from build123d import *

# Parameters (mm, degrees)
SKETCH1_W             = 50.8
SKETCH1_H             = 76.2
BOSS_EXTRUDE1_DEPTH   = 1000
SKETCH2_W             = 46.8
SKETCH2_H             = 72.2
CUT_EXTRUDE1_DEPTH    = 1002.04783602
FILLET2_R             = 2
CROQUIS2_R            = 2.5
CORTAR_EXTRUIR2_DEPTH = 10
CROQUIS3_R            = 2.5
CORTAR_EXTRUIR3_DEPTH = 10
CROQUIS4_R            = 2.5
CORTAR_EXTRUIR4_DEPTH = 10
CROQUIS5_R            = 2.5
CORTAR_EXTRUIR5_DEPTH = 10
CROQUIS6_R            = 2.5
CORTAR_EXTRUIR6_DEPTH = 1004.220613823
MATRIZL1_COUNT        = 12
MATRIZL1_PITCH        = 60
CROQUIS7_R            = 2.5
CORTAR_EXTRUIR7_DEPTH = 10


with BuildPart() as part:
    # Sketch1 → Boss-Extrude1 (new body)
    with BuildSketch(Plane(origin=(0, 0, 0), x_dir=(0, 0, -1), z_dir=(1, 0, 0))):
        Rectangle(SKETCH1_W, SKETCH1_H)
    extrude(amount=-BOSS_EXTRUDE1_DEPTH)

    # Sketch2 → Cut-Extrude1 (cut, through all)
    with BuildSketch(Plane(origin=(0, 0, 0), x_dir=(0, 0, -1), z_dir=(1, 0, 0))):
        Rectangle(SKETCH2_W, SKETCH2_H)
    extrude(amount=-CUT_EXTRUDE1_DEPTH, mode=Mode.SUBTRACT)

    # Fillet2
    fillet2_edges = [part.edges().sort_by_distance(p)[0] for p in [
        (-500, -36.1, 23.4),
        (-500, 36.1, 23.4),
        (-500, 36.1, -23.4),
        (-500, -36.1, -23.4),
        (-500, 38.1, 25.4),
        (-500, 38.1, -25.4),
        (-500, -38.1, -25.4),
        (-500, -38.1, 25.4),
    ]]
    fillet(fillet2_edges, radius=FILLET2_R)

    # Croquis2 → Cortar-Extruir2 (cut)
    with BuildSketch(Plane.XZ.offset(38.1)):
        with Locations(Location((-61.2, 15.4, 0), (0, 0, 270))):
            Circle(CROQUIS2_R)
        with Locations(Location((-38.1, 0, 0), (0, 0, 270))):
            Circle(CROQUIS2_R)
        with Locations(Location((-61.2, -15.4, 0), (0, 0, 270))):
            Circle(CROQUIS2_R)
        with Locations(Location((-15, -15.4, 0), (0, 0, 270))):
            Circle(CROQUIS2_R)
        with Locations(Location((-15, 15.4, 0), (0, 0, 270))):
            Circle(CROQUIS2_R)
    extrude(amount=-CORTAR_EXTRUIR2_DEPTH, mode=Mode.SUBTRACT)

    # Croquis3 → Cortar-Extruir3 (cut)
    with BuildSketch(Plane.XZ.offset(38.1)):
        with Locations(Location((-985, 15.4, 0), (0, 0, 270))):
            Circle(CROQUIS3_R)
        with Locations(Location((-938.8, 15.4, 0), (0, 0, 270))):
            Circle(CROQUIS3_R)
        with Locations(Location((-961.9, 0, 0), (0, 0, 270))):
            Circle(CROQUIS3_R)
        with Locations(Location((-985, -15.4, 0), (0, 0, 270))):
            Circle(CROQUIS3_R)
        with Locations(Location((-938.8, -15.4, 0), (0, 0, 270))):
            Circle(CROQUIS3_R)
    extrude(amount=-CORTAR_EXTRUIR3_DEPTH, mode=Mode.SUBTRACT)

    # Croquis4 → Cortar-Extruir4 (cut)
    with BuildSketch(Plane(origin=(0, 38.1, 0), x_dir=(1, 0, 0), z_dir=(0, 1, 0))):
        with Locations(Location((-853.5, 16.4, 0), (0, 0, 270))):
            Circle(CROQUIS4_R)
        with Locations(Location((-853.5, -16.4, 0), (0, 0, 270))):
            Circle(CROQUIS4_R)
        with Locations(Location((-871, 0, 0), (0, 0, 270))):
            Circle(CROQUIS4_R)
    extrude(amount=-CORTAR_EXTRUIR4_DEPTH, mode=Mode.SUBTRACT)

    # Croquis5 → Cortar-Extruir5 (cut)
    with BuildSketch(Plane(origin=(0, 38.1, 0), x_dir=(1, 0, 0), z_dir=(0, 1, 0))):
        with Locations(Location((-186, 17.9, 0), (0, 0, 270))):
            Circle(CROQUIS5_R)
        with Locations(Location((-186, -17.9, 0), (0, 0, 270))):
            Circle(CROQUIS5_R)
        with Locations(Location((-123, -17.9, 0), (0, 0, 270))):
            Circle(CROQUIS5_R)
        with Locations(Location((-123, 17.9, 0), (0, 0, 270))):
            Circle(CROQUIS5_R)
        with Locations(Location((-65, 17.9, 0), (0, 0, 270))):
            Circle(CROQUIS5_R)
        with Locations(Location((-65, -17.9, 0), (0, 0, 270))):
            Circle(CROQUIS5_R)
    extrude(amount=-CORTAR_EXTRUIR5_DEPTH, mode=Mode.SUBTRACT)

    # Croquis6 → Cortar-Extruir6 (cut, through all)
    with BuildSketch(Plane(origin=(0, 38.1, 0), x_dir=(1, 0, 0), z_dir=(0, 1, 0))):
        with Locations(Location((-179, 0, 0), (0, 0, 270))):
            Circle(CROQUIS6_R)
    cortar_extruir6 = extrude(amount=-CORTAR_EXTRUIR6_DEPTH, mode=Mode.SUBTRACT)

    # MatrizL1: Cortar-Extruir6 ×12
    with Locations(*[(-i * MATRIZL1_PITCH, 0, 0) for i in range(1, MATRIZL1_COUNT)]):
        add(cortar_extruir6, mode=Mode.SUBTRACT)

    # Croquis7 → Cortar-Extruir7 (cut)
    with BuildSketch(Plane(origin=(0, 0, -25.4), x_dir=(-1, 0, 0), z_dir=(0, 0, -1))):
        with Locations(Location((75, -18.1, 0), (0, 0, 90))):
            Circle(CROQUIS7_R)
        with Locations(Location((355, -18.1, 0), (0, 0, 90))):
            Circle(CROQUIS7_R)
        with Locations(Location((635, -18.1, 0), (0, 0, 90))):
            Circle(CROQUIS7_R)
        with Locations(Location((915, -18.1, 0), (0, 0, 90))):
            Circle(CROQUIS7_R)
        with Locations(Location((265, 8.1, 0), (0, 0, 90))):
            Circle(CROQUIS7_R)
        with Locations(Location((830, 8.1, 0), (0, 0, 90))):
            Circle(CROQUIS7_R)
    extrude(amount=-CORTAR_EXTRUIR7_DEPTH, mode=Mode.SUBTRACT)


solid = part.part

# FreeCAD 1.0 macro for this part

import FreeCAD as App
import Part
import Sketcher
from FreeCAD import Vector
Q = App.Units.Quantity


def edges_at(feature, points):
    """Names of the edges that pass closest to the given points."""
    edges = feature.Shape.Edges
    near = lambda p: min(range(len(edges)), key=lambda i: edges[i].distToShape(Part.Vertex(*p))[0])
    return sorted({f"Edge{near(p) + 1}" for p in points})


def add_polygon(sketch, points):
    """Adds a closed chain of lines whose ends are joined by coincident constraints."""
    first, n = sketch.GeometryCount, len(points)
    for a, b in zip(points, points[1:] + points[:1]):
        sketch.addGeometry(Part.LineSegment(App.Vector(*a, 0), App.Vector(*b, 0)), False)
    for i in range(n):
        sketch.addConstraint(Sketcher.Constraint("Coincident", first + i, 2, first + (i + 1) % n, 1))

doc = App.newDocument("Part")
body = doc.addObject("PartDesign::Body", "Body")

sketch1 = body.newObject("Sketcher::SketchObject", "Sketch")
sketch1.AttachmentSupport = (doc.getObject("YZ_Plane"), [""])
sketch1.MapMode = "FlatFace"
add_polygon(sketch1, [(38, 25), (-38, 25), (-38, -25), (38, -25)])
sketch1.addConstraint([
    Sketcher.Constraint("Horizontal", 0),
    Sketcher.Constraint("Vertical", 1),
    Sketcher.Constraint("Horizontal", 2),
    Sketcher.Constraint("Vertical", 3),
    Sketcher.Constraint("Symmetric", 0, 2, 2, 2, -1, 1),
    Sketcher.Constraint("DistanceX", 0, 2, 0, 1, Q("76.2 mm")),
    Sketcher.Constraint("DistanceY", 1, 2, 1, 1, Q("50.8 mm")),
])
pad1 = body.newObject("PartDesign::Pad", "Pad")
pad1.Profile = sketch1
pad1.Length = 1000
pad1.Reversed = True

sketch2 = body.newObject("Sketcher::SketchObject", "Sketch001")
sketch2.AttachmentSupport = (doc.getObject("YZ_Plane"), [""])
sketch2.MapMode = "FlatFace"
add_polygon(sketch2, [(36, 23), (-36, 23), (-36, -23), (36, -23)])
sketch2.addConstraint([
    Sketcher.Constraint("Horizontal", 0),
    Sketcher.Constraint("Vertical", 1),
    Sketcher.Constraint("Horizontal", 2),
    Sketcher.Constraint("Vertical", 3),
    Sketcher.Constraint("Symmetric", 0, 2, 2, 2, -1, 1),
    Sketcher.Constraint("DistanceX", 0, 2, 0, 1, Q("72.2 mm")),
    Sketcher.Constraint("DistanceY", 1, 2, 1, 1, Q("46.8 mm")),
])
pocket1 = body.newObject("PartDesign::Pocket", "Pocket")
pocket1.Profile = sketch2
pocket1.Type = "ThroughAll"
doc.recompute()

fillet = body.newObject("PartDesign::Fillet", "Fillet")
fillet.Base = (pocket1, edges_at(pocket1, [
    (-500, -36.1, 23.4),
    (-500, 36.1, 23.4),
    (-500, 36.1, -23.4),
    (-500, -36.1, -23.4),
    (-500, 38.1, 25.4),
    (-500, 38.1, -25.4),
    (-500, -38.1, -25.4),
    (-500, -38.1, 25.4),
]))
fillet.Radius = 2

sketch3 = body.newObject("Sketcher::SketchObject", "Sketch002")
sketch3.AttachmentSupport = (doc.getObject("XZ_Plane"), [""])
sketch3.MapMode = "FlatFace"
sketch3.AttachmentOffset = App.Placement(Vector(0, 0, 38.1), App.Rotation())
sketch3.addGeometry([
    Part.Circle(Vector(-61.2, 15.4, 0), Vector(0, 0, 1), 2.5),
    Part.Circle(Vector(-38.1, 0, 0), Vector(0, 0, 1), 2.5),
    Part.Circle(Vector(-61.2, -15.4, 0), Vector(0, 0, 1), 2.5),
    Part.Circle(Vector(-15, -15.4, 0), Vector(0, 0, 1), 2.5),
    Part.Circle(Vector(-15, 15.4, 0), Vector(0, 0, 1), 2.5),
], False)
sketch3.addConstraint([
    Sketcher.Constraint("Equal", 0, 1),
    Sketcher.Constraint("Equal", 1, 2),
    Sketcher.Constraint("Equal", 2, 3),
    Sketcher.Constraint("Equal", 3, 4),
    Sketcher.Constraint("Symmetric", 0, 3, 2, 3, -1),
    Sketcher.Constraint("Symmetric", 3, 3, 4, 3, -1),
    Sketcher.Constraint("PointOnObject", 1, 3, -1),
    Sketcher.Constraint("Horizontal", 2, 3, 3, 3),
    Sketcher.Constraint("Diameter", 0, Q("5 mm")),
    Sketcher.Constraint("DistanceX", 3, 3, -1, 1, Q("15 mm")),
    Sketcher.Constraint("DistanceX", 0, 3, -1, 1, Q("61.2 mm")),
    Sketcher.Constraint("DistanceY", -1, 1, 0, 3, Q("15.4 mm")),
    Sketcher.Constraint("DistanceX", 1, 3, -1, 1, Q("38.1 mm")),
])
pocket2 = body.newObject("PartDesign::Pocket", "Pocket001")
pocket2.Profile = sketch3
pocket2.Length = 10

sketch4 = body.newObject("Sketcher::SketchObject", "Sketch003")
sketch4.AttachmentSupport = (doc.getObject("XZ_Plane"), [""])
sketch4.MapMode = "FlatFace"
sketch4.AttachmentOffset = App.Placement(Vector(0, 0, 38.1), App.Rotation())
sketch4.addGeometry([
    Part.Circle(Vector(-985, 15.4, 0), Vector(0, 0, 1), 2.5),
    Part.Circle(Vector(-938.8, 15.4, 0), Vector(0, 0, 1), 2.5),
    Part.Circle(Vector(-961.9, 0, 0), Vector(0, 0, 1), 2.5),
    Part.Circle(Vector(-985, -15.4, 0), Vector(0, 0, 1), 2.5),
    Part.Circle(Vector(-938.8, -15.4, 0), Vector(0, 0, 1), 2.5),
], False)
sketch4.addConstraint([
    Sketcher.Constraint("Equal", 0, 1),
    Sketcher.Constraint("Equal", 1, 2),
    Sketcher.Constraint("Equal", 2, 3),
    Sketcher.Constraint("Equal", 3, 4),
    Sketcher.Constraint("Symmetric", 0, 3, 3, 3, -1),
    Sketcher.Constraint("Symmetric", 1, 3, 4, 3, -1),
    Sketcher.Constraint("PointOnObject", 2, 3, -1),
    Sketcher.Constraint("Horizontal", 0, 3, 1, 3),
    Sketcher.Constraint("Diameter", 0, Q("5 mm")),
    Sketcher.Constraint("DistanceX", 0, 3, -1, 1, Q("985 mm")),
    Sketcher.Constraint("DistanceY", -1, 1, 0, 3, Q("15.4 mm")),
    Sketcher.Constraint("DistanceX", 1, 3, -1, 1, Q("938.8 mm")),
    Sketcher.Constraint("DistanceX", 2, 3, -1, 1, Q("961.9 mm")),
])
pocket3 = body.newObject("PartDesign::Pocket", "Pocket002")
pocket3.Profile = sketch4
pocket3.Length = 10

sketch5 = body.newObject("Sketcher::SketchObject", "Sketch004")
sketch5.AttachmentSupport = (doc.getObject("XZ_Plane"), [""])
sketch5.MapMode = "FlatFace"
sketch5.AttachmentOffset = App.Placement(Vector(0, 0, -38.1), App.Rotation())
sketch5.addGeometry([
    Part.Circle(Vector(-853.5, -16.4, 0), Vector(0, 0, 1), 2.5),
    Part.Circle(Vector(-853.5, 16.4, 0), Vector(0, 0, 1), 2.5),
    Part.Circle(Vector(-871, 0, 0), Vector(0, 0, 1), 2.5),
], False)
sketch5.addConstraint([
    Sketcher.Constraint("Equal", 0, 1),
    Sketcher.Constraint("Equal", 1, 2),
    Sketcher.Constraint("Symmetric", 0, 3, 1, 3, -1),
    Sketcher.Constraint("PointOnObject", 2, 3, -1),
    Sketcher.Constraint("Diameter", 0, Q("5 mm")),
    Sketcher.Constraint("DistanceX", 2, 3, -1, 1, Q("871 mm")),
    Sketcher.Constraint("DistanceX", 0, 3, -1, 1, Q("853.5 mm")),
    Sketcher.Constraint("DistanceY", 0, 3, -1, 1, Q("16.4 mm")),
])
pocket4 = body.newObject("PartDesign::Pocket", "Pocket003")
pocket4.Profile = sketch5
pocket4.Length = 10
pocket4.Reversed = True

sketch6 = body.newObject("Sketcher::SketchObject", "Sketch005")
sketch6.AttachmentSupport = (doc.getObject("XZ_Plane"), [""])
sketch6.MapMode = "FlatFace"
sketch6.AttachmentOffset = App.Placement(Vector(0, 0, -38.1), App.Rotation())
sketch6.addGeometry([
    Part.Circle(Vector(-186, -17.9, 0), Vector(0, 0, 1), 2.5),
    Part.Circle(Vector(-186, 17.9, 0), Vector(0, 0, 1), 2.5),
    Part.Circle(Vector(-123, 17.9, 0), Vector(0, 0, 1), 2.5),
    Part.Circle(Vector(-123, -17.9, 0), Vector(0, 0, 1), 2.5),
    Part.Circle(Vector(-65, -17.9, 0), Vector(0, 0, 1), 2.5),
    Part.Circle(Vector(-65, 17.9, 0), Vector(0, 0, 1), 2.5),
], False)
sketch6.addConstraint([
    Sketcher.Constraint("Equal", 0, 1),
    Sketcher.Constraint("Equal", 1, 2),
    Sketcher.Constraint("Equal", 2, 3),
    Sketcher.Constraint("Equal", 3, 4),
    Sketcher.Constraint("Equal", 4, 5),
    Sketcher.Constraint("Symmetric", 0, 3, 1, 3, -1),
    Sketcher.Constraint("Symmetric", 2, 3, 3, 3, -1),
    Sketcher.Constraint("Symmetric", 4, 3, 5, 3, -1),
    Sketcher.Constraint("Horizontal", 1, 3, 2, 3),
    Sketcher.Constraint("Horizontal", 3, 3, 4, 3),
    Sketcher.Constraint("Diameter", 0, Q("5 mm")),
    Sketcher.Constraint("DistanceX", 0, 3, -1, 1, Q("186 mm")),
    Sketcher.Constraint("DistanceX", 2, 3, -1, 1, Q("123 mm")),
    Sketcher.Constraint("DistanceX", 4, 3, -1, 1, Q("65 mm")),
    Sketcher.Constraint("DistanceY", 0, 3, -1, 1, Q("17.9 mm")),
])
pocket5 = body.newObject("PartDesign::Pocket", "Pocket004")
pocket5.Profile = sketch6
pocket5.Length = 10
pocket5.Reversed = True

sketch7 = body.newObject("Sketcher::SketchObject", "Sketch006")
sketch7.AttachmentSupport = (doc.getObject("XZ_Plane"), [""])
sketch7.MapMode = "FlatFace"
sketch7.AttachmentOffset = App.Placement(Vector(0, 0, -38.1), App.Rotation())
sketch7.addGeometry(Part.Circle(Vector(-179, 0, 0), Vector(0, 0, 1), 2.5), False)
sketch7.addConstraint([
    Sketcher.Constraint("PointOnObject", 0, 3, -1),
    Sketcher.Constraint("Diameter", 0, Q("5 mm")),
    Sketcher.Constraint("DistanceX", 0, 3, -1, 1, Q("179 mm")),
])
pocket6 = body.newObject("PartDesign::Pocket", "Pocket005")
pocket6.Profile = sketch7
pocket6.Type = "ThroughAll"
pocket6.Reversed = True
doc.recompute()

linearpattern = body.newObject("PartDesign::LinearPattern", "LinearPattern")
linearpattern.Originals = [pocket6]
linearpattern.Direction = (doc.getObject("X_Axis"), [""])
linearpattern.Mode = "offset"
linearpattern.Offset = 60
linearpattern.Occurrences = 12
linearpattern.Reversed = True
body.Tip = linearpattern

sketch8 = body.newObject("Sketcher::SketchObject", "Sketch007")
sketch8.AttachmentSupport = (doc.getObject("XY_Plane"), [""])
sketch8.MapMode = "FlatFace"
sketch8.AttachmentOffset = App.Placement(Vector(0, 0, -25.4), App.Rotation())
sketch8.addGeometry([
    Part.Circle(Vector(-75, -18.1, 0), Vector(0, 0, 1), 2.5),
    Part.Circle(Vector(-355, -18.1, 0), Vector(0, 0, 1), 2.5),
    Part.Circle(Vector(-635, -18.1, 0), Vector(0, 0, 1), 2.5),
    Part.Circle(Vector(-915, -18.1, 0), Vector(0, 0, 1), 2.5),
    Part.Circle(Vector(-265, 8.1, 0), Vector(0, 0, 1), 2.5),
    Part.Circle(Vector(-830, 8.1, 0), Vector(0, 0, 1), 2.5),
], False)
sketch8.addConstraint([
    Sketcher.Constraint("Equal", 0, 1),
    Sketcher.Constraint("Equal", 1, 2),
    Sketcher.Constraint("Equal", 2, 3),
    Sketcher.Constraint("Equal", 3, 4),
    Sketcher.Constraint("Equal", 4, 5),
    Sketcher.Constraint("Horizontal", 0, 3, 1, 3),
    Sketcher.Constraint("Horizontal", 1, 3, 2, 3),
    Sketcher.Constraint("Horizontal", 2, 3, 3, 3),
    Sketcher.Constraint("Horizontal", 4, 3, 5, 3),
    Sketcher.Constraint("Diameter", 0, Q("5 mm")),
    Sketcher.Constraint("DistanceX", 0, 3, -1, 1, Q("75 mm")),
    Sketcher.Constraint("DistanceX", 1, 3, -1, 1, Q("355 mm")),
    Sketcher.Constraint("DistanceX", 2, 3, -1, 1, Q("635 mm")),
    Sketcher.Constraint("DistanceX", 3, 3, -1, 1, Q("915 mm")),
    Sketcher.Constraint("DistanceX", 4, 3, -1, 1, Q("265 mm")),
    Sketcher.Constraint("DistanceX", 5, 3, -1, 1, Q("830 mm")),
    Sketcher.Constraint("DistanceY", 0, 3, -1, 1, Q("18.1 mm")),
    Sketcher.Constraint("DistanceY", -1, 1, 4, 3, Q("8.1 mm")),
])
pocket7 = body.newObject("PartDesign::Pocket", "Pocket006")
pocket7.Profile = sketch8
pocket7.Length = 10
pocket7.Reversed = True

doc.recompute()
